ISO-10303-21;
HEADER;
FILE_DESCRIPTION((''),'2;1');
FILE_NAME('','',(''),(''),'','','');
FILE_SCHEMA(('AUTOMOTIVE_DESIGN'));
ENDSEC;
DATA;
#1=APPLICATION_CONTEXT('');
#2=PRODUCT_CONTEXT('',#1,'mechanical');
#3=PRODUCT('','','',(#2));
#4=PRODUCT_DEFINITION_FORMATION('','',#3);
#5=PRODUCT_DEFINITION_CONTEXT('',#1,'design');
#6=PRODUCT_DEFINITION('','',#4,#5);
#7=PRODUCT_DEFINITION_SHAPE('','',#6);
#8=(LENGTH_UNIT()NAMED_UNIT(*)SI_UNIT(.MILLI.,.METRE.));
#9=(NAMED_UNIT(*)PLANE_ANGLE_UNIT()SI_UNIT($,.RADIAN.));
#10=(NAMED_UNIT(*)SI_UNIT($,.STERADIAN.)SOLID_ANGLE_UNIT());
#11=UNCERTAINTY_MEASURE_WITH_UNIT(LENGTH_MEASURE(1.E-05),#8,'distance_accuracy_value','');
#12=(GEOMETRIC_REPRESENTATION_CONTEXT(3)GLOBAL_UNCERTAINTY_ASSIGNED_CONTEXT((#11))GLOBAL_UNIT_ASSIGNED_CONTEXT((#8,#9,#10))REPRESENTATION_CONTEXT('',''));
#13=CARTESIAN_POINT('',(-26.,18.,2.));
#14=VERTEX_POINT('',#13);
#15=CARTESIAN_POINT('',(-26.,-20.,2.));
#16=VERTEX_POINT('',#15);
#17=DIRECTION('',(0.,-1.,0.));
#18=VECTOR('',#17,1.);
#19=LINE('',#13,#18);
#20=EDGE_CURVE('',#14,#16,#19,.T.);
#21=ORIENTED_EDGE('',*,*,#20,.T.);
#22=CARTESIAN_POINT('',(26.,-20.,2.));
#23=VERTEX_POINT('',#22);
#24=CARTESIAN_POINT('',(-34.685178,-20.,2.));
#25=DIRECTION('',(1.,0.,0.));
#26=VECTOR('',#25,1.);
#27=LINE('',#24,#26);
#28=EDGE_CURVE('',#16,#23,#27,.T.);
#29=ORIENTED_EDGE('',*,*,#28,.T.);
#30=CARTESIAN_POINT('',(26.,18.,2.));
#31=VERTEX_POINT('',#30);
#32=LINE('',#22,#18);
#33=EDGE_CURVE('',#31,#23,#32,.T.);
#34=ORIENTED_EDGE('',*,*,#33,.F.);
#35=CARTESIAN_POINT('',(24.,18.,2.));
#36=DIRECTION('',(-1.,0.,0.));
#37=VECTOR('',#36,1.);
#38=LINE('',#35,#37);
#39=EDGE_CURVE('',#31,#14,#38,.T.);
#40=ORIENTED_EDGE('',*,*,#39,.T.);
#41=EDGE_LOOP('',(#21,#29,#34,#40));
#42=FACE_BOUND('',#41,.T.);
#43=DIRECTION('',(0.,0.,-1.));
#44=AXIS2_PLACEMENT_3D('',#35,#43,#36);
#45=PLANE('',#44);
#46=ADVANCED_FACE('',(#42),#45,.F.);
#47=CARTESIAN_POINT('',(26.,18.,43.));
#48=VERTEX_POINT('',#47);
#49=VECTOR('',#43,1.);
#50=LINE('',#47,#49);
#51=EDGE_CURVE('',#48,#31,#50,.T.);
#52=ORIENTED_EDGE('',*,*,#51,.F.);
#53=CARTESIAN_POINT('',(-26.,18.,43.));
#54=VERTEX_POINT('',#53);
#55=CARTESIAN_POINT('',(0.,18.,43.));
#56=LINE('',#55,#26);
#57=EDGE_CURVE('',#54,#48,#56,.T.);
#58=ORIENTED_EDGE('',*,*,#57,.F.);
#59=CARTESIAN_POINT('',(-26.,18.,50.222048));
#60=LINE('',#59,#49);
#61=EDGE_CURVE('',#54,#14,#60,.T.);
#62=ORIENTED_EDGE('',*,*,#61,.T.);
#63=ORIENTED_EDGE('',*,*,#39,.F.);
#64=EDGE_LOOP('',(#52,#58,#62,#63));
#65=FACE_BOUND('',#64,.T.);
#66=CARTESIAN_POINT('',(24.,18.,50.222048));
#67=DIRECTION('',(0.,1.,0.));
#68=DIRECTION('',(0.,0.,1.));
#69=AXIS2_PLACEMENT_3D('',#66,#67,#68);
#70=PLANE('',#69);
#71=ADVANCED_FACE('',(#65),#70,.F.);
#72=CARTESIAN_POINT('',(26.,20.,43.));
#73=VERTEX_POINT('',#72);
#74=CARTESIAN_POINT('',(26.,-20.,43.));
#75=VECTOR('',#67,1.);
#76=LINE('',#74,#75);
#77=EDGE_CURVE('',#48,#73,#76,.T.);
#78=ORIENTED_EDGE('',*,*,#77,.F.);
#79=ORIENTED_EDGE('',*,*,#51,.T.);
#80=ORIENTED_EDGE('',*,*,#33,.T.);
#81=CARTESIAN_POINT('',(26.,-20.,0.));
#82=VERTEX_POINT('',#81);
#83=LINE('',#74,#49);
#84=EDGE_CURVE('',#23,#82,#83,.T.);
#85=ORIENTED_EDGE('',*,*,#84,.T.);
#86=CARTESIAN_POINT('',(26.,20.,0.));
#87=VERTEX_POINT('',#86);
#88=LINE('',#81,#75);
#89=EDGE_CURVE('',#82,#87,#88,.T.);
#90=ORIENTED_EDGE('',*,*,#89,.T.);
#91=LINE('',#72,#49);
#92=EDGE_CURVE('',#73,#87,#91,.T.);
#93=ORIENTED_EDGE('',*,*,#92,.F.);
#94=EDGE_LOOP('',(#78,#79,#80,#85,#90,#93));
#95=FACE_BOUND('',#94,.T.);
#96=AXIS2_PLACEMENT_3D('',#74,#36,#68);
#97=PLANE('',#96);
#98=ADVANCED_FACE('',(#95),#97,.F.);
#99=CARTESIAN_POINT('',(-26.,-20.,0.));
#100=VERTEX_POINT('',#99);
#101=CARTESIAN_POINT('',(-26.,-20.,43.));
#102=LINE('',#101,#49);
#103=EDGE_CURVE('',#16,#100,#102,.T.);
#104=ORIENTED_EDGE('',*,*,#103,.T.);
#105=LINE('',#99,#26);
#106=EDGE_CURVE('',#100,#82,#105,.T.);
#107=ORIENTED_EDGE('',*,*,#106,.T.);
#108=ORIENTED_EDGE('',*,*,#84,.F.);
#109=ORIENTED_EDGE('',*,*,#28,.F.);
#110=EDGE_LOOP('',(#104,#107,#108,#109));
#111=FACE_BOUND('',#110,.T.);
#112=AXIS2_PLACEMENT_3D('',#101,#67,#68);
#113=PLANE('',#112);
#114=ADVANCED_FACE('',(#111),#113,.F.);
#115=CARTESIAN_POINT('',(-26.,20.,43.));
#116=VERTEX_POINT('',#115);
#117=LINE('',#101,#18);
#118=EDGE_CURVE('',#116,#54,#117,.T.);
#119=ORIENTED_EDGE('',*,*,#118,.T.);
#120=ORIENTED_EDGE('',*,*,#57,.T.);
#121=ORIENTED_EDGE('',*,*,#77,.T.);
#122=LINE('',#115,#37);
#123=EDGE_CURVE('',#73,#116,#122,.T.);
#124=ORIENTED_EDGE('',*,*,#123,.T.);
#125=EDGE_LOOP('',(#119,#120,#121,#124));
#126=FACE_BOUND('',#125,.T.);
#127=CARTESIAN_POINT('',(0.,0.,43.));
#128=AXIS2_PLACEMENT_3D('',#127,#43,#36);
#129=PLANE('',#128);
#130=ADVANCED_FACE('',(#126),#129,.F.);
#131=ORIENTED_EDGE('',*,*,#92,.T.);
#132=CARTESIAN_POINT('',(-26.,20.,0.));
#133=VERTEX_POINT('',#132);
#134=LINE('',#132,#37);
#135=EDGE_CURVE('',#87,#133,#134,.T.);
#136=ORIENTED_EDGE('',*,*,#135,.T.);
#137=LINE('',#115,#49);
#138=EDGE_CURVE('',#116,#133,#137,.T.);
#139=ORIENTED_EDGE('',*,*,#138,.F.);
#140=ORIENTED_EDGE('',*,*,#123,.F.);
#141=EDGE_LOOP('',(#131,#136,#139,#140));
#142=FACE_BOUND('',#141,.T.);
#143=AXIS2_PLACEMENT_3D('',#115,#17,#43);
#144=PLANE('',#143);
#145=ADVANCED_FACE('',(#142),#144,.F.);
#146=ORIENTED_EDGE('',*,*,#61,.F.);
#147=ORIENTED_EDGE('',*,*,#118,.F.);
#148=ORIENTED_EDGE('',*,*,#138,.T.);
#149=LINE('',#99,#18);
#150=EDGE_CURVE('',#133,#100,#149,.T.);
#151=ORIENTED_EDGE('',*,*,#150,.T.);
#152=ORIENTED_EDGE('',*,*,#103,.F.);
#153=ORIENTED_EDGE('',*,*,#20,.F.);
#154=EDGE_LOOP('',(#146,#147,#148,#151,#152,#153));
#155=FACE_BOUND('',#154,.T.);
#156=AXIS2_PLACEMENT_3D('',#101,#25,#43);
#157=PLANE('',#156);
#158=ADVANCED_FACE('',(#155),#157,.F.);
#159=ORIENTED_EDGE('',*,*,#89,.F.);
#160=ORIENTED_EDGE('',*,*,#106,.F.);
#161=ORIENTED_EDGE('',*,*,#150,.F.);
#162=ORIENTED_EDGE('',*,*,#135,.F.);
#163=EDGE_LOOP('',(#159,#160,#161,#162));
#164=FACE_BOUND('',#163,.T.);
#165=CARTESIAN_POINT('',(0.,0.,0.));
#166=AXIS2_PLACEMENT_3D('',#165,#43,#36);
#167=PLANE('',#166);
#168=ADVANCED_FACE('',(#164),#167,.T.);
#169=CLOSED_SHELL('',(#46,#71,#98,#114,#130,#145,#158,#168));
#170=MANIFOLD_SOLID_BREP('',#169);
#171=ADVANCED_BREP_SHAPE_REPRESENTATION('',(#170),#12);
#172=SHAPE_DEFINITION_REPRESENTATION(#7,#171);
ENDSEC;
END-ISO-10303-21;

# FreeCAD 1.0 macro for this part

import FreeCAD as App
import Part
import Sketcher


def add_polygon(sketch, points):
    """Adds a closed chain of lines whose ends are joined by coincident constraints."""
    first, n = sketch.GeometryCount, len(points)
    for a, b in zip(points, points[1:] + points[:1]):
        sketch.addGeometry(Part.LineSegment(App.Vector(*a, 0), App.Vector(*b, 0)), False)
    for i in range(n):
        sketch.addConstraint(Sketcher.Constraint("Coincident", first + i, 2, first + (i + 1) % n, 1))

doc = App.newDocument("Part")
body = doc.addObject("PartDesign::Body", "Body")

sketch1 = doc.addObject("Sketcher::SketchObject", "Sketch")
body.addObject(sketch1)
sketch1.AttachmentSupport = (doc.XY_Plane, [""])
sketch1.MapMode = "FlatFace"
add_polygon(sketch1, [(-26, 20), (-26, -20), (26, -20), (26, 20)])
sketch1.addConstraint([
    Sketcher.Constraint("Vertical", 0),
    Sketcher.Constraint("Horizontal", 1),
    Sketcher.Constraint("Vertical", 2),
    Sketcher.Constraint("Horizontal", 3),
    Sketcher.Constraint("Symmetric", 0, 2, 2, 2, -1, 1),
    Sketcher.Constraint("DistanceX", 1, 1, 1, 2, 52.0),
    Sketcher.Constraint("DistanceY", 0, 2, 0, 1, 40.0),
])
pad1 = doc.addObject("PartDesign::Pad", "Pad")
body.addObject(pad1)
pad1.Profile = sketch1
pad1.Length = 43

sketch2 = doc.addObject("Sketcher::SketchObject", "Sketch001")
body.addObject(sketch2)
sketch2.AttachmentSupport = (doc.YZ_Plane, [""])
sketch2.MapMode = "FlatFace"
sketch2.AttachmentOffset = App.Placement(App.Vector(0, 0, -26), App.Rotation())
add_polygon(sketch2, [(18, 2), (-18, 2), (-18, 50), (18, 50)])
sketch2.addConstraint([
    Sketcher.Constraint("Horizontal", 0),
    Sketcher.Constraint("Vertical", 1),
    Sketcher.Constraint("Horizontal", 2),
    Sketcher.Constraint("Vertical", 3),
    Sketcher.Constraint("DistanceX", 0, 2, 0, 1, 36.0),
    Sketcher.Constraint("DistanceX", 0, 2, -1, 1, 18.0),
    Sketcher.Constraint("DistanceY", -1, 1, 0, 2, 2.0),
    Sketcher.Constraint("DistanceY", 1, 1, 1, 2, 48.222048),
])
pocket1 = doc.addObject("PartDesign::Pocket", "Pocket")
body.addObject(pocket1)
pocket1.Profile = sketch2
pocket1.Length = 50
pocket1.Reversed = True

sketch3 = doc.addObject("Sketcher::SketchObject", "Sketch002")
body.addObject(sketch3)
sketch3.AttachmentSupport = (doc.XZ_Plane, [""])
sketch3.MapMode = "FlatFace"
sketch3.AttachmentOffset = App.Placement(App.Vector(0, 0, 20), App.Rotation())
add_polygon(sketch3, [(-35, 53), (-35, 2), (38, 2), (38, 53)])
sketch3.addConstraint([
    Sketcher.Constraint("Vertical", 0),
    Sketcher.Constraint("Horizontal", 1),
    Sketcher.Constraint("Vertical", 2),
    Sketcher.Constraint("Horizontal", 3),
    Sketcher.Constraint("DistanceY", -1, 1, 0, 2, 2.0),
    Sketcher.Constraint("DistanceX", 1, 1, 1, 2, 72.68611),
    Sketcher.Constraint("DistanceY", 0, 2, 0, 1, 50.534375),
    Sketcher.Constraint("DistanceX", 0, 2, -1, 1, 34.685178),
])
pocket2 = doc.addObject("PartDesign::Pocket", "Pocket001")
body.addObject(pocket2)
pocket2.Profile = sketch3
pocket2.Length = 38

doc.recompute()
